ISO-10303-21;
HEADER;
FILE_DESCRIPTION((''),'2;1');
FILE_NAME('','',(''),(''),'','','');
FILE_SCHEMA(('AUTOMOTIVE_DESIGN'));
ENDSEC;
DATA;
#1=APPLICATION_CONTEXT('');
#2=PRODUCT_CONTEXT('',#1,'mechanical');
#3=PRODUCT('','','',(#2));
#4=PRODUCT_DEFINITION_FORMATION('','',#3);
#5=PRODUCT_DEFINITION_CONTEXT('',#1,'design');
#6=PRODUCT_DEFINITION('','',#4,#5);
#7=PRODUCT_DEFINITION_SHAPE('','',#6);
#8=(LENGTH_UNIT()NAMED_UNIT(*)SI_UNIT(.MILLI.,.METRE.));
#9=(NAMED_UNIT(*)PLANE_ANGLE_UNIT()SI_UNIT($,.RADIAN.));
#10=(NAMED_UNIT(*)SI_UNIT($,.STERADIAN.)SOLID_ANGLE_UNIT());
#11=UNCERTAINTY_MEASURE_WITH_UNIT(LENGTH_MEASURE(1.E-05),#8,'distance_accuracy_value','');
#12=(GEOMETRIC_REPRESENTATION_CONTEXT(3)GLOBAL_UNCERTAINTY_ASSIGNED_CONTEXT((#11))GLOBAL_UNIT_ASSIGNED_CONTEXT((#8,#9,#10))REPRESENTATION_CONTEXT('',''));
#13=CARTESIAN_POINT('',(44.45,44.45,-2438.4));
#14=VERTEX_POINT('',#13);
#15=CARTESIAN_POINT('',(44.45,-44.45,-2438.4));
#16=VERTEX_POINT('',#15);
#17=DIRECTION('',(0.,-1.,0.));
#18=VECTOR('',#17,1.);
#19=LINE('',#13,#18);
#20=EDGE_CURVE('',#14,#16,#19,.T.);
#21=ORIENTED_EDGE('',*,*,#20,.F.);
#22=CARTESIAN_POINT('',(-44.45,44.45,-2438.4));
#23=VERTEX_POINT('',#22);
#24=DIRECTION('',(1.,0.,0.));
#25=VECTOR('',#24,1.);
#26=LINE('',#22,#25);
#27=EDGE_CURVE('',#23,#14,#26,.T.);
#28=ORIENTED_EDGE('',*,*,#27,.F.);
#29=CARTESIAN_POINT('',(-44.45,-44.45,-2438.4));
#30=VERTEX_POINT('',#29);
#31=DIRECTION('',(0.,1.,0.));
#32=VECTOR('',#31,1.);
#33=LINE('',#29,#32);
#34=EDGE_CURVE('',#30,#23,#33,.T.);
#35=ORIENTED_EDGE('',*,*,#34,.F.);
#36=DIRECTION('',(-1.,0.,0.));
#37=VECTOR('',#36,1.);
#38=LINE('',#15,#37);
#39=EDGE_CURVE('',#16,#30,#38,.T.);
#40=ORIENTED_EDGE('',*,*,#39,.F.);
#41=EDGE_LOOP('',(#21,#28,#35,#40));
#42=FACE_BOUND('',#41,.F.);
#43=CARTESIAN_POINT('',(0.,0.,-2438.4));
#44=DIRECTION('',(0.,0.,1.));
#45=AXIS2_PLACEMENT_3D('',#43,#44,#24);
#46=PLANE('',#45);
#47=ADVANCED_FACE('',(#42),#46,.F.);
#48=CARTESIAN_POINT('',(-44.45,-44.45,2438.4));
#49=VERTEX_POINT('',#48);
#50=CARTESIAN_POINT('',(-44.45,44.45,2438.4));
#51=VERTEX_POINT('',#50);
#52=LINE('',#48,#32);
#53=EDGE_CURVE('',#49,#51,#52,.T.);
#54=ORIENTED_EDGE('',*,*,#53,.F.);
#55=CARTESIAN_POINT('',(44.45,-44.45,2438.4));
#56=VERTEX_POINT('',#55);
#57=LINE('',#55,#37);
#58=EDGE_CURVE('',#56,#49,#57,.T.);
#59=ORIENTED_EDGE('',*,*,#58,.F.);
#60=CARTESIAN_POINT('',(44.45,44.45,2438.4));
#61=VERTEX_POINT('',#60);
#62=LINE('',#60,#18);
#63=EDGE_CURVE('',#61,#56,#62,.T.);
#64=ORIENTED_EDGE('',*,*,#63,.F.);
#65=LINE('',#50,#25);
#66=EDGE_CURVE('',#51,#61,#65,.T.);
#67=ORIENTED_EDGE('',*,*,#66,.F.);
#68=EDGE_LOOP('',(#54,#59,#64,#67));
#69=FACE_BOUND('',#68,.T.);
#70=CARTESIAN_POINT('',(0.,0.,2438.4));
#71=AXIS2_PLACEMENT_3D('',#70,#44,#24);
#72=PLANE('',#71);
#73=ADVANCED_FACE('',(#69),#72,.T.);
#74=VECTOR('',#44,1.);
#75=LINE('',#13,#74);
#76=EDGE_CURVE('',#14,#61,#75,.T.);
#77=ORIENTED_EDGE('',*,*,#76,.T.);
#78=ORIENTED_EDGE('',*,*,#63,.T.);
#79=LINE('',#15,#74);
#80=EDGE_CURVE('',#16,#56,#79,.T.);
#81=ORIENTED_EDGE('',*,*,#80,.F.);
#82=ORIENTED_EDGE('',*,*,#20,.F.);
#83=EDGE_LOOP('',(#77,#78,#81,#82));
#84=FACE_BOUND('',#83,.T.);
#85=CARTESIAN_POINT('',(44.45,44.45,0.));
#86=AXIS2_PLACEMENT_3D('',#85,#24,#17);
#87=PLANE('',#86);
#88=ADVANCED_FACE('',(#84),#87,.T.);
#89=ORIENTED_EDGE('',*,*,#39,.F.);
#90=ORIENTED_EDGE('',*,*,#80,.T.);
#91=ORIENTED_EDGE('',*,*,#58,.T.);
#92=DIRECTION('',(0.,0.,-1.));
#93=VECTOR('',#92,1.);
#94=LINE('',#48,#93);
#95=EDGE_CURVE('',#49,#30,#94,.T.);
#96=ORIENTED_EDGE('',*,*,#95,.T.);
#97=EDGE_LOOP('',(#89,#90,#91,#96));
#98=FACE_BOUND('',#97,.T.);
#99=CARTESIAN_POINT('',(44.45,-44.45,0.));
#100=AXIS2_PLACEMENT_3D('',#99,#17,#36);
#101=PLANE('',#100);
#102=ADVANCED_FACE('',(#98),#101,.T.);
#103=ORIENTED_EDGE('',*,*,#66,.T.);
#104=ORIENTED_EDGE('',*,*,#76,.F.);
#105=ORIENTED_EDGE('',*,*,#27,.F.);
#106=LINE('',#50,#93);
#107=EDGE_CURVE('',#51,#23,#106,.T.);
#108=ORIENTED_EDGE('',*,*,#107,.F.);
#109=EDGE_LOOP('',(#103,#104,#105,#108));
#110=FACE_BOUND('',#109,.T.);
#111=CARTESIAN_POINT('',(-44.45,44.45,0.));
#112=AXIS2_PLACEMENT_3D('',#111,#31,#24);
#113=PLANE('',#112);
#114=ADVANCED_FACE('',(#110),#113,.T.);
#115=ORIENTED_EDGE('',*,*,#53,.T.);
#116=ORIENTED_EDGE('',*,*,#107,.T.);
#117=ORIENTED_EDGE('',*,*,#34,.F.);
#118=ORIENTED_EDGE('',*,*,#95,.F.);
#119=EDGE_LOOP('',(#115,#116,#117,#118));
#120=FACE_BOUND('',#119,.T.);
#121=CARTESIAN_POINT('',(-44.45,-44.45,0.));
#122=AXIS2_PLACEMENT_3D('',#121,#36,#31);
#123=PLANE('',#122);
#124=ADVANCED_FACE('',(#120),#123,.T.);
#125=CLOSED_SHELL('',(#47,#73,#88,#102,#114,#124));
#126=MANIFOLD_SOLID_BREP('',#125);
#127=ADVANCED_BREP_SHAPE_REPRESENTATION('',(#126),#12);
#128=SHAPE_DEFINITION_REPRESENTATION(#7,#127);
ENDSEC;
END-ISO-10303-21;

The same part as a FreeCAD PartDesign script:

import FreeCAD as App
import Part
import Sketcher
from FreeCAD import Vector
Q = App.Units.Quantity


def add_polygon(sketch, points):
    """Adds a closed chain of lines whose ends are joined by coincident constraints."""
    first, n = sketch.GeometryCount, len(points)
    for a, b in zip(points, points[1:] + points[:1]):
        sketch.addGeometry(Part.LineSegment(App.Vector(*a, 0), App.Vector(*b, 0)), False)
    for i in range(n):
        sketch.addConstraint(Sketcher.Constraint("Coincident", first + i, 2, first + (i + 1) % n, 1))

doc = App.newDocument("Part")
body = doc.addObject("PartDesign::Body", "Body")

# Sketch on XY plane
sketch1 = body.newObject("Sketcher::SketchObject", "Sketch")
sketch1.AttachmentSupport = (doc.getObject("XY_Plane"), [""])
sketch1.MapMode = "FlatFace"
add_polygon(sketch1, [(-44.45, -44.45), (44.45, -44.45), (44.45, 44.45), (-44.45, 44.45)])  # lines 0-3
sketch1.addConstraint(Sketcher.Constraint("Horizontal", 0))
sketch1.addConstraint(Sketcher.Constraint("Vertical", 1))
sketch1.addConstraint(Sketcher.Constraint("Horizontal", 2))
sketch1.addConstraint(Sketcher.Constraint("Vertical", 3))
sketch1.addConstraint(Sketcher.Constraint("Symmetric", 0, 2, 2, 2, -1, 1))
sketch1.addConstraint(Sketcher.Constraint("Equal", 2, 1))
sketch1.addConstraint(Sketcher.Constraint("DistanceX", 0, 1, 0, 2, Q("3.5 in")))
pad1 = body.newObject("PartDesign::Pad", "Pad")
pad1.Profile = sketch1
pad1.Length = Q("192 in")
pad1.Midplane = True

doc.recompute()
